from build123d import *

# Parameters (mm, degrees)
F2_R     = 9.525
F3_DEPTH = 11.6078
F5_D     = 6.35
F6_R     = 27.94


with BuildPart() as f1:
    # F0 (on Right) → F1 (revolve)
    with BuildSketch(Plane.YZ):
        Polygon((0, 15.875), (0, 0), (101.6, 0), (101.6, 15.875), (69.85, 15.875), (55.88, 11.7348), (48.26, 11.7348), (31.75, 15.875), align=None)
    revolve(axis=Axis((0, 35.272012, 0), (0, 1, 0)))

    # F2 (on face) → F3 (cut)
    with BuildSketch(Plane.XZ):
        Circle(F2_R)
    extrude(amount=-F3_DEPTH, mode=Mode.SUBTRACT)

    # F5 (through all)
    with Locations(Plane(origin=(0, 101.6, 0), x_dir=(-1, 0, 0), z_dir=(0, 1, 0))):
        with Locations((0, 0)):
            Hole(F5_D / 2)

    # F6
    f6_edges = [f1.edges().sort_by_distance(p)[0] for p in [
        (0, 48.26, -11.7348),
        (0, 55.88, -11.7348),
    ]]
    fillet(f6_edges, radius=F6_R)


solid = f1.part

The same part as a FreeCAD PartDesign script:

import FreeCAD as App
import Part
import Sketcher

V = App.Vector
Q = App.Units.Quantity


def edges_at(feature, points):
    """Names of the edges that pass closest to the given points."""
    edges = feature.Shape.Edges
    near = lambda p: min(range(len(edges)), key=lambda i: edges[i].distToShape(Part.Vertex(*p))[0])
    return sorted({f"Edge{near(p) + 1}" for p in points})

doc = App.newDocument("Part")
body = doc.addObject("PartDesign::Body", "Body")

sketch1 = doc.addObject("Sketcher::SketchObject", "Sketch")
body.addObject(sketch1)
sketch1.AttachmentSupport = (doc.YZ_Plane, [""])
sketch1.MapMode = "FlatFace"
sketch1.addGeometry([
    Part.LineSegment(V(0, 16, 0), V(0, 0, 0)),
    Part.LineSegment(V(0, 0, 0), V(102, 0, 0)),
    Part.LineSegment(V(102, 0, 0), V(102, 16, 0)),
    Part.LineSegment(V(102, 16, 0), V(70, 16, 0)),
    Part.LineSegment(V(70, 16, 0), V(56, 12, 0)),
    Part.LineSegment(V(56, 12, 0), V(48, 12, 0)),
    Part.LineSegment(V(48, 12, 0), V(32, 16, 0)),
    Part.LineSegment(V(32, 16, 0), V(0, 16, 0)),
], False)
sketch1.addConstraint([
    Sketcher.Constraint("Coincident", 0, 2, 1, 1),
    Sketcher.Constraint("Coincident", 1, 2, 2, 1),
    Sketcher.Constraint("Coincident", 2, 2, 3, 1),
    Sketcher.Constraint("Coincident", 3, 2, 4, 1),
    Sketcher.Constraint("Coincident", 4, 2, 5, 1),
    Sketcher.Constraint("Coincident", 5, 2, 6, 1),
    Sketcher.Constraint("Coincident", 6, 2, 7, 1),
    Sketcher.Constraint("Coincident", 7, 2, 0, 1),
    Sketcher.Constraint("Vertical", 0),
    Sketcher.Constraint("Horizontal", 1),
    Sketcher.Constraint("Vertical", 2),
    Sketcher.Constraint("Horizontal", 3),
    Sketcher.Constraint("Horizontal", 5),
    Sketcher.Constraint("Horizontal", 7),
    Sketcher.Constraint("Coincident", 0, 2, -1, 1),
    Sketcher.Constraint("Horizontal", 3, 2, 6, 2),
    Sketcher.Constraint("Equal", 3, 7),
    Sketcher.Constraint("DistanceX", 1, 1, 1, 2, Q("4 in")),
    Sketcher.Constraint("DistanceX", 5, 2, 5, 1, Q("0.3 in")),
    Sketcher.Constraint("DistanceX", 3, 2, 3, 1, Q("1.25 in")),
    Sketcher.Constraint("DistanceX", -1, 1, 4, 2, Q("2.2 in")),
    Sketcher.Constraint("DistanceY", 0, 2, 0, 1, Q("0.625 in")),
    Sketcher.Constraint("DistanceY", -1, 1, 4, 2, Q("0.462 in")),
])
revolution = doc.addObject("PartDesign::Revolution", "Revolution")
body.addObject(revolution)
revolution.Profile = sketch1
revolution.ReferenceAxis = (sketch1, ["H_Axis"])
revolution.Angle = 360

sketch2 = doc.addObject("Sketcher::SketchObject", "Sketch001")
body.addObject(sketch2)
sketch2.AttachmentSupport = (doc.XZ_Plane, [""])
sketch2.MapMode = "FlatFace"
sketch2.addGeometry(Part.Circle(V(0, 0, 0), V(0, 0, 1), 10), False)
sketch2.addConstraint([
    Sketcher.Constraint("Coincident", 0, 3, -1, 1),
    Sketcher.Constraint("Diameter", 0, Q("0.75 in")),
])
pocket1 = doc.addObject("PartDesign::Pocket", "Pocket")
body.addObject(pocket1)
pocket1.Profile = sketch2
pocket1.Length = Q("0.457 in")

sketch3 = doc.addObject("Sketcher::SketchObject", "Sketch002")
body.addObject(sketch3)
sketch3.AttachmentSupport = (doc.XZ_Plane, [""])
sketch3.MapMode = "FlatFace"
sketch3.AttachmentOffset = App.Placement(V(0, 0, -4 * 25.4), App.Rotation())
sketch3.addGeometry(Part.Circle(V(0, 0, 0), V(0, 0, 1), 3.2), False)
sketch3.addConstraint([
    Sketcher.Constraint("Coincident", 0, 3, -1, 1),
    Sketcher.Constraint("Diameter", 0, Q("0.25 in")),
])
doc.recompute()
hole = doc.addObject("PartDesign::Hole", "Hole")
body.addObject(hole)
hole.Profile = sketch3
hole.ThreadType = "None"
hole.Diameter = Q("0.25 in")
hole.DepthType = "ThroughAll"
hole.Reversed = True
doc.recompute()

fillet = doc.addObject("PartDesign::Fillet", "Fillet")
body.addObject(fillet)
fillet.Base = (hole, edges_at(hole, [(0, 48.26, -11.735), (0, 55.88, -11.735)]))
fillet.Radius = Q("1.1 in")

doc.recompute()
